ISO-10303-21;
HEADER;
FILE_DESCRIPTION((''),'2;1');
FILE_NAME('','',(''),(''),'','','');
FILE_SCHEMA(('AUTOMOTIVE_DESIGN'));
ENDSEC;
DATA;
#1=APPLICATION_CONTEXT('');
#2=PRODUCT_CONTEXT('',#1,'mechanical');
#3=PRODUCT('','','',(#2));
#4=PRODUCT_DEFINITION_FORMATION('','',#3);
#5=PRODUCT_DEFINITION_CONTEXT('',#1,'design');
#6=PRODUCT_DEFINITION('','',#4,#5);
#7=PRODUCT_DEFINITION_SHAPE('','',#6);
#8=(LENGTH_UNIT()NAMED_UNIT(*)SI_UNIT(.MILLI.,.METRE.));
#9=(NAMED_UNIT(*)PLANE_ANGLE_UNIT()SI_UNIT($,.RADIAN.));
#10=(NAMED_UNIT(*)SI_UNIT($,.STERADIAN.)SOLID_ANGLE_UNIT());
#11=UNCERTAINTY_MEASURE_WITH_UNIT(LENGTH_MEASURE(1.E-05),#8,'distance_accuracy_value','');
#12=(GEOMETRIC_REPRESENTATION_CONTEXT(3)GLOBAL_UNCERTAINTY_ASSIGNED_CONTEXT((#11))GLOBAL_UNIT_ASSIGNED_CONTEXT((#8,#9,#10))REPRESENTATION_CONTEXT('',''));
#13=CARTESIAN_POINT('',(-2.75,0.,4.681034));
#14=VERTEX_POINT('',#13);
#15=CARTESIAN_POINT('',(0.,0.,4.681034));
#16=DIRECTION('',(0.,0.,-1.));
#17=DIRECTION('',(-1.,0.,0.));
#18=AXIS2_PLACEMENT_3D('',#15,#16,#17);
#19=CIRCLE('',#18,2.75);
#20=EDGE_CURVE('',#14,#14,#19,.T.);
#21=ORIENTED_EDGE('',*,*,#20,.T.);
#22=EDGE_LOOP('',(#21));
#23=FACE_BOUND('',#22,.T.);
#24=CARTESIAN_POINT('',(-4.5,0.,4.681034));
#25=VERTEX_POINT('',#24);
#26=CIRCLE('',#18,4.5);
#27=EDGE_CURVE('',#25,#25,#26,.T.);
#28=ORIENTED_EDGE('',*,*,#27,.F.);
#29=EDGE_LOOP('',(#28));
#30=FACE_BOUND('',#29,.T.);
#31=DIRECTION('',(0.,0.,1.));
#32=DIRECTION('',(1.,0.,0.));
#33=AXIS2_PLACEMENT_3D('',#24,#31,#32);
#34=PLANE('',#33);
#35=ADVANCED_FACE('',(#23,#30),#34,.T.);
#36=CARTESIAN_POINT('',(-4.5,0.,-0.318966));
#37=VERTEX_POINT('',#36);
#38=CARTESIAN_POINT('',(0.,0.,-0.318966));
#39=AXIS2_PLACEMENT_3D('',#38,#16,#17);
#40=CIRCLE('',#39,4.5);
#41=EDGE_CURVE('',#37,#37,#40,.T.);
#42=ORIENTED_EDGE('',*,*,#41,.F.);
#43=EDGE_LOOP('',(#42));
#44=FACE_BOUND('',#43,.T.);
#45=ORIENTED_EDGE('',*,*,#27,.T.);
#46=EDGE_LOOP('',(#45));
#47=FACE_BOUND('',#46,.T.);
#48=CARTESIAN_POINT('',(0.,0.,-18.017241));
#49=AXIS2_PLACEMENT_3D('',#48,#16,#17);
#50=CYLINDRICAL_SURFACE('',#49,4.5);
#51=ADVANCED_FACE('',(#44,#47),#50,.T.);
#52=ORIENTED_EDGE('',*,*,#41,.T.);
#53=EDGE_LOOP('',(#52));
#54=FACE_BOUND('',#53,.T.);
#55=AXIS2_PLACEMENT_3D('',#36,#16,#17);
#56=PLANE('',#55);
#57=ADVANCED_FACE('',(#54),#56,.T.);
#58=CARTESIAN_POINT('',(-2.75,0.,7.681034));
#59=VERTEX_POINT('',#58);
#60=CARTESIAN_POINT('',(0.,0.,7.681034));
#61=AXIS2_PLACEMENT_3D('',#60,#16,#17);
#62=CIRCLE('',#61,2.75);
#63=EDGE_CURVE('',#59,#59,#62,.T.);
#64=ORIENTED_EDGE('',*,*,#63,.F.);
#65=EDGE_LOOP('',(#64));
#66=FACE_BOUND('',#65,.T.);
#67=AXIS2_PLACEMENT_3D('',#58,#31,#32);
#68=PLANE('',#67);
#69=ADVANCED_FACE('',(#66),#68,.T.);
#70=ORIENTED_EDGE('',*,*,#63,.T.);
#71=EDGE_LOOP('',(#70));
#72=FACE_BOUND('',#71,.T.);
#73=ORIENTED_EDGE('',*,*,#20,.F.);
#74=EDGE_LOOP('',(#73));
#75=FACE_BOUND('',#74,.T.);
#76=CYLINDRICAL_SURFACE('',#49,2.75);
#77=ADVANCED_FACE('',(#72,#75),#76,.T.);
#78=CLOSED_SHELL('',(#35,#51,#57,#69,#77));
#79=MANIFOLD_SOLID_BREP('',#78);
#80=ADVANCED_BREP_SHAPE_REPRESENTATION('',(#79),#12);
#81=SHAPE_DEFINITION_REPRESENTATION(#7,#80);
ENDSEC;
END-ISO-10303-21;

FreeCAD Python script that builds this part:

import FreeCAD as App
import Part
import Sketcher
from FreeCAD import Vector

doc = App.newDocument("Part")
body = doc.addObject("PartDesign::Body", "Body")

sketch1 = body.newObject("Sketcher::SketchObject", "Sketch")
sketch1.AttachmentSupport = (doc.getObject("XZ_Plane"), [""])
sketch1.MapMode = "FlatFace"
sketch1.addGeometry([
    Part.LineSegment(Vector(-4.5, -0.3, 0), Vector(-4.5, 4.7, 0)),
    Part.LineSegment(Vector(-4.5, 4.7, 0), Vector(-2.8, 4.7, 0)),
    Part.LineSegment(Vector(-2.8, 4.7, 0), Vector(-2.8, 7.7, 0)),
    Part.LineSegment(Vector(-2.8, 7.7, 0), Vector(0, 7.7, 0)),
    Part.LineSegment(Vector(0, 7.7, 0), Vector(0, -0.3, 0)),
    Part.LineSegment(Vector(0, -0.3, 0), Vector(-4.5, -0.3, 0)),
], False)
sketch1.addConstraint([
    Sketcher.Constraint("Coincident", 0, 2, 1, 1),
    Sketcher.Constraint("Coincident", 1, 2, 2, 1),
    Sketcher.Constraint("Coincident", 2, 2, 3, 1),
    Sketcher.Constraint("Coincident", 3, 2, 4, 1),
    Sketcher.Constraint("Coincident", 4, 2, 5, 1),
    Sketcher.Constraint("Coincident", 5, 2, 0, 1),
    Sketcher.Constraint("Vertical", 0),
    Sketcher.Constraint("Horizontal", 1),
    Sketcher.Constraint("Vertical", 2),
    Sketcher.Constraint("Horizontal", 3),
    Sketcher.Constraint("Vertical", 4),
    Sketcher.Constraint("Horizontal", 5),
    Sketcher.Constraint("PointOnObject", 3, 2, -2),
    Sketcher.Constraint("DistanceY", 0, 1, 0, 2, 5.0),
    Sketcher.Constraint("DistanceY", 2, 1, 2, 2, 3.0),
    Sketcher.Constraint("DistanceX", 5, 2, 5, 1, 4.5),
    Sketcher.Constraint("DistanceX", 1, 1, 1, 2, 1.75),
    Sketcher.Constraint("DistanceY", -1, 1, 0, 2, 4.681034),
])
revolution = body.newObject("PartDesign::Revolution", "Revolution")
revolution.Profile = sketch1
revolution.ReferenceAxis = (sketch1, ["V_Axis"])
revolution.Angle = 360

doc.recompute()
